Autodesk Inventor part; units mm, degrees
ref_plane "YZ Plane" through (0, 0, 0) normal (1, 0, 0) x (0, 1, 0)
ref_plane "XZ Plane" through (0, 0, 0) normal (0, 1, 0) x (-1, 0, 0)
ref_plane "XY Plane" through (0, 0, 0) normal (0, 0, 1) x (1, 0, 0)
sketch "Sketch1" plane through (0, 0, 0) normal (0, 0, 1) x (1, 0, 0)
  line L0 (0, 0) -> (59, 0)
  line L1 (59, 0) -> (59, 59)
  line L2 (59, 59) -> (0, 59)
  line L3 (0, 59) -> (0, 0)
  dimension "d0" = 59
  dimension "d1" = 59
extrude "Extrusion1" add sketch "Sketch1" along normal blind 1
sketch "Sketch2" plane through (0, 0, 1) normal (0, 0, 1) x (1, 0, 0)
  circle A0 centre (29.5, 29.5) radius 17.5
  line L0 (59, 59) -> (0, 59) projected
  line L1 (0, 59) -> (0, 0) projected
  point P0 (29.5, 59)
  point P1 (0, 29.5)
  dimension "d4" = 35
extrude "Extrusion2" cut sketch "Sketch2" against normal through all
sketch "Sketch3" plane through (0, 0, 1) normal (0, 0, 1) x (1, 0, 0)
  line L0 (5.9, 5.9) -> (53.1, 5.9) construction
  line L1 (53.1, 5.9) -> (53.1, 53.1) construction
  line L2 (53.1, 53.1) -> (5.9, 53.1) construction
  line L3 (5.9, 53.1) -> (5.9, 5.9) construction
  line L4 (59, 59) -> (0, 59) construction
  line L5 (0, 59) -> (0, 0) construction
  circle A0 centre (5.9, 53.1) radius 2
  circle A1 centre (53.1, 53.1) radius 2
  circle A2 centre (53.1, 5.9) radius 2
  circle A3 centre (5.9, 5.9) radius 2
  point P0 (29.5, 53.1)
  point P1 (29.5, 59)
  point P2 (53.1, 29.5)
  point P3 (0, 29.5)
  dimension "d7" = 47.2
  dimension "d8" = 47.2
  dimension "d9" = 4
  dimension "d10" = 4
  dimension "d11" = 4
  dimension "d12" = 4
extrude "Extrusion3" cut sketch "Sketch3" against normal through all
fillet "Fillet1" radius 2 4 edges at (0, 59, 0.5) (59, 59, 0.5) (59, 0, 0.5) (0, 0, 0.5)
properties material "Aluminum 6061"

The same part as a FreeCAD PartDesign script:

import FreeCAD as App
import Part
import Sketcher


def edges_at(feature, points):
    """Names of the edges that pass closest to the given points."""
    edges = feature.Shape.Edges
    near = lambda p: min(range(len(edges)), key=lambda i: edges[i].distToShape(Part.Vertex(*p))[0])
    return sorted({f"Edge{near(p) + 1}" for p in points})


def add_polygon(sketch, points):
    """Adds a closed chain of lines whose ends are joined by coincident constraints."""
    first, n = sketch.GeometryCount, len(points)
    for a, b in zip(points, points[1:] + points[:1]):
        sketch.addGeometry(Part.LineSegment(App.Vector(*a, 0), App.Vector(*b, 0)), False)
    for i in range(n):
        sketch.addConstraint(Sketcher.Constraint("Coincident", first + i, 2, first + (i + 1) % n, 1))

doc = App.newDocument("Part")
params = doc.addObject("Spreadsheet::Sheet", "Params")
for row, (alias, value) in enumerate([
    ("sketch1_width", "59 mm"),
    ("pad1_length", "1 mm"),
    ("sketch2_diameter", "35 mm"),
    ("sketch3_diameter", "4 mm"),
    ("fillet_radius", "2 mm"),
], start=1):
    params.set(f"A{row}", alias)
    params.set(f"B{row}", "=" + value)
    params.setAlias(f"B{row}", alias)

body = doc.addObject("PartDesign::Body", "Body")

sketch1 = body.newObject("Sketcher::SketchObject", "Sketch")
sketch1.AttachmentSupport = (doc.getObject("XY_Plane"), [""])
sketch1.MapMode = "FlatFace"
add_polygon(sketch1, [(0, 59), (0, 0), (59, 0), (59, 59)])
sketch1.addConstraint([
    Sketcher.Constraint("Vertical", 0),
    Sketcher.Constraint("Horizontal", 1),
    Sketcher.Constraint("Vertical", 2),
    Sketcher.Constraint("Horizontal", 3),
    Sketcher.Constraint("Coincident", 0, 2, -1, 1),
    Sketcher.Constraint("Equal", 3, 0),
    Sketcher.Constraint("DistanceX", 1, 1, 1, 2, 59.0),
])
sketch1.setExpression("Constraints[10]", "Params.sketch1_width")
pad1 = body.newObject("PartDesign::Pad", "Pad")
pad1.Profile = sketch1
pad1.setExpression("Length", "Params.pad1_length")

sketch2 = body.newObject("Sketcher::SketchObject", "Sketch001")
sketch2.AttachmentSupport = (doc.getObject("XY_Plane"), [""])
sketch2.MapMode = "FlatFace"
sketch2.AttachmentOffset = App.Placement(App.Vector(0, 0, 1), App.Rotation())
sketch2.addGeometry(Part.Circle(App.Vector(30, 30, 0), App.Vector(0, 0, 1), 18), False)
sketch2.addConstraint([
    Sketcher.Constraint("Diameter", 0, 35.0),
    Sketcher.Constraint("DistanceX", -1, 1, 0, 3, 29.5),
    Sketcher.Constraint("DistanceY", -1, 1, 0, 3, 29.5),
])
sketch2.setExpression("Constraints[0]", "Params.sketch2_diameter")
pocket1 = body.newObject("PartDesign::Pocket", "Pocket")
pocket1.Profile = sketch2
pocket1.Type = "ThroughAll"

sketch3 = body.newObject("Sketcher::SketchObject", "Sketch002")
sketch3.AttachmentSupport = (doc.getObject("XY_Plane"), [""])
sketch3.MapMode = "FlatFace"
sketch3.AttachmentOffset = App.Placement(App.Vector(0, 0, 1), App.Rotation())
sketch3.addGeometry([
    Part.Circle(App.Vector(5.9, 53.1, 0), App.Vector(0, 0, 1), 2),
    Part.Circle(App.Vector(53.1, 53.1, 0), App.Vector(0, 0, 1), 2),
    Part.Circle(App.Vector(53.1, 5.9, 0), App.Vector(0, 0, 1), 2),
    Part.Circle(App.Vector(5.9, 5.9, 0), App.Vector(0, 0, 1), 2),
], False)
sketch3.addConstraint([
    Sketcher.Constraint("Equal", 0, 1),
    Sketcher.Constraint("Equal", 1, 2),
    Sketcher.Constraint("Equal", 2, 3),
    Sketcher.Constraint("Horizontal", 0, 3, 1, 3),
    Sketcher.Constraint("Horizontal", 2, 3, 3, 3),
    Sketcher.Constraint("Vertical", 1, 3, 2, 3),
    Sketcher.Constraint("Vertical", 0, 3, 3, 3),
    Sketcher.Constraint("Diameter", 0, 4.0),
    Sketcher.Constraint("DistanceX", 0, 3, 1, 3, 47.2),
    Sketcher.Constraint("DistanceY", 2, 3, 1, 3, 47.2),
    Sketcher.Constraint("DistanceX", -1, 1, 0, 3, 5.9),
    Sketcher.Constraint("DistanceY", -1, 1, 0, 3, 53.1),
])
sketch3.setExpression("Constraints[7]", "Params.sketch3_diameter")
pocket2 = body.newObject("PartDesign::Pocket", "Pocket001")
pocket2.Profile = sketch3
pocket2.Type = "ThroughAll"
doc.recompute()

fillet = body.newObject("PartDesign::Fillet", "Fillet")
fillet.Base = (pocket2, edges_at(pocket2, [
    (0, 59, 0.5),
    (59, 59, 0.5),
    (59, 0, 0.5),
    (0, 0, 0.5),
]))
fillet.setExpression("Radius", "Params.fillet_radius")

doc.recompute()
